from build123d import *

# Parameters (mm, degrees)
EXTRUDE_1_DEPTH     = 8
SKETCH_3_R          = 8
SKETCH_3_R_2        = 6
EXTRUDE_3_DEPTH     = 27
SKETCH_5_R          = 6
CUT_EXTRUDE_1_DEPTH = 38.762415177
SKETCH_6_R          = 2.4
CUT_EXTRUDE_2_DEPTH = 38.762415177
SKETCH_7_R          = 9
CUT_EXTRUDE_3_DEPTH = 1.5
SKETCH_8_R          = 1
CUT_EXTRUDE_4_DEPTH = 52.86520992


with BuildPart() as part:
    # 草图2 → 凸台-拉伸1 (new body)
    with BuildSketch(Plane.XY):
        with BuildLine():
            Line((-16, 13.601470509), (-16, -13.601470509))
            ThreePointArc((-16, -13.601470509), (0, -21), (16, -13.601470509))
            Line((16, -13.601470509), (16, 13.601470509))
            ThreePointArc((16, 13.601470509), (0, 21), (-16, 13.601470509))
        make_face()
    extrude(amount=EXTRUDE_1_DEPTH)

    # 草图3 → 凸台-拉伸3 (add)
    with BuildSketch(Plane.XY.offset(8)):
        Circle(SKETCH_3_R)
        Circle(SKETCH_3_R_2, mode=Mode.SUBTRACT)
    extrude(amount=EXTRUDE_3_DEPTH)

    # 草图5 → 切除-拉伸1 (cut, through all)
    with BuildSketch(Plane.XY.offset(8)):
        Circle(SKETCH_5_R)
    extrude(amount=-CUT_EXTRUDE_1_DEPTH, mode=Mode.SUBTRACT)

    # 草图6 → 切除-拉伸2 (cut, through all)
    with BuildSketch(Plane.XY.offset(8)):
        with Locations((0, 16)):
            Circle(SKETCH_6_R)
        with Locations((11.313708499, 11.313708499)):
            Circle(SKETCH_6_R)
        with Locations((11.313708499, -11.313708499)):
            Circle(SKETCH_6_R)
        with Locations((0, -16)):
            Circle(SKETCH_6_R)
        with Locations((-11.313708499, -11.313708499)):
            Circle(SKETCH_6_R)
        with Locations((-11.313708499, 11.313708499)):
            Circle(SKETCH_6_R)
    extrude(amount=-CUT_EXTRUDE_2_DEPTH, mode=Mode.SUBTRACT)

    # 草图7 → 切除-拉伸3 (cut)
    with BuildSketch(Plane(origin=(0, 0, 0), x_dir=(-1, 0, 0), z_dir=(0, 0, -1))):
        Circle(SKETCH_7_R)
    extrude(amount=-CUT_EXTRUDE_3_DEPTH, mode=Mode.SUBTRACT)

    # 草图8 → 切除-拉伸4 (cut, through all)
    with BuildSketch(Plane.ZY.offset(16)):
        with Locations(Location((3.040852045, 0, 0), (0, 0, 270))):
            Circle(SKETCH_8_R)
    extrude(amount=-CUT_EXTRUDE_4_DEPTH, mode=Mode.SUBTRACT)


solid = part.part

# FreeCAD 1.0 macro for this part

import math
import FreeCAD as App
import Part
import Sketcher

V = App.Vector

doc = App.newDocument("Part")
body = doc.addObject("PartDesign::Body", "Body")

sketch1 = body.newObject("Sketcher::SketchObject", "Sketch")
sketch1.AttachmentSupport = (doc.getObject("XY_Plane"), [""])
sketch1.MapMode = "FlatFace"
sketch1.addGeometry(Part.LineSegment(V(-16, 14, 0), V(-16, -14, 0)), False)
sketch1.addGeometry(Part.ArcOfCircle(Part.Circle(V(0, 0, 0), V(0, 0, 1), 21), math.radians(-140), math.radians(-40)), False)
sketch1.addGeometry(Part.LineSegment(V(16, -14, 0), V(16, 14, 0)), False)
sketch1.addGeometry(Part.ArcOfCircle(Part.Circle(V(0, 0, 0), V(0, 0, 1), 21), math.radians(40), math.radians(140)), False)
sketch1.addConstraint(Sketcher.Constraint("Coincident", 0, 2, 1, 1))
sketch1.addConstraint(Sketcher.Constraint("Coincident", 1, 2, 2, 1))
sketch1.addConstraint(Sketcher.Constraint("Coincident", 2, 2, 3, 1))
sketch1.addConstraint(Sketcher.Constraint("Coincident", 3, 2, 0, 1))
sketch1.addConstraint(Sketcher.Constraint("Vertical", 0))
sketch1.addConstraint(Sketcher.Constraint("Vertical", 2))
sketch1.addConstraint(Sketcher.Constraint("Coincident", 1, 3, -1, 1))
sketch1.addConstraint(Sketcher.Constraint("Coincident", 3, 3, -1, 1))
sketch1.addConstraint(Sketcher.Constraint("Equal", 1, 3))
sketch1.addConstraint(Sketcher.Constraint("Horizontal", 0, 2, 1, 2))
sketch1.addConstraint(Sketcher.Constraint("Radius", 1, 21.0))
sketch1.addConstraint(Sketcher.Constraint("DistanceX", 0, 2, -1, 1, 16.0))
pad1 = body.newObject("PartDesign::Pad", "Pad")
pad1.Profile = sketch1
pad1.Length = 8

sketch2 = body.newObject("Sketcher::SketchObject", "Sketch001")
sketch2.AttachmentSupport = (doc.getObject("XY_Plane"), [""])
sketch2.MapMode = "FlatFace"
sketch2.AttachmentOffset = App.Placement(V(0, 0, 8), App.Rotation())
sketch2.addGeometry(Part.Circle(V(0, 0, 0), V(0, 0, 1), 8), False)
sketch2.addGeometry(Part.Circle(V(0, 0, 0), V(0, 0, 1), 6), False)
sketch2.addConstraint(Sketcher.Constraint("Coincident", 0, 3, -1, 1))
sketch2.addConstraint(Sketcher.Constraint("Coincident", 1, 3, -1, 1))
sketch2.addConstraint(Sketcher.Constraint("Diameter", 0, 16.0))
sketch2.addConstraint(Sketcher.Constraint("Diameter", 1, 12.0))
pad2 = body.newObject("PartDesign::Pad", "Pad001")
pad2.Profile = sketch2
pad2.Length = 27

sketch3 = body.newObject("Sketcher::SketchObject", "Sketch002")
sketch3.AttachmentSupport = (doc.getObject("XY_Plane"), [""])
sketch3.MapMode = "FlatFace"
sketch3.AttachmentOffset = App.Placement(V(0, 0, 8), App.Rotation())
sketch3.addGeometry(Part.Circle(V(0, 0, 0), V(0, 0, 1), 6), False)
sketch3.addConstraint(Sketcher.Constraint("Coincident", 0, 3, -1, 1))
sketch3.addConstraint(Sketcher.Constraint("Diameter", 0, 12.0))
pocket1 = body.newObject("PartDesign::Pocket", "Pocket")
pocket1.Profile = sketch3
pocket1.Type = "ThroughAll"

sketch4 = body.newObject("Sketcher::SketchObject", "Sketch003")
sketch4.AttachmentSupport = (doc.getObject("XY_Plane"), [""])
sketch4.MapMode = "FlatFace"
sketch4.AttachmentOffset = App.Placement(V(0, 0, 8), App.Rotation())
sketch4.addGeometry(Part.Circle(V(0, 16, 0), V(0, 0, 1), 2.4), False)
sketch4.addGeometry(Part.Circle(V(11.3, 11.3, 0), V(0, 0, 1), 2.4), False)
sketch4.addGeometry(Part.Circle(V(11.3, -11.3, 0), V(0, 0, 1), 2.4), False)
sketch4.addGeometry(Part.Circle(V(0, -16, 0), V(0, 0, 1), 2.4), False)
sketch4.addGeometry(Part.Circle(V(-11.3, -11.3, 0), V(0, 0, 1), 2.4), False)
sketch4.addGeometry(Part.Circle(V(-11.3, 11.3, 0), V(0, 0, 1), 2.4), False)
sketch4.addConstraint(Sketcher.Constraint("Equal", 0, 1))
sketch4.addConstraint(Sketcher.Constraint("Equal", 1, 2))
sketch4.addConstraint(Sketcher.Constraint("Equal", 2, 3))
sketch4.addConstraint(Sketcher.Constraint("Equal", 3, 4))
sketch4.addConstraint(Sketcher.Constraint("Equal", 4, 5))
sketch4.addConstraint(Sketcher.Constraint("Symmetric", 0, 3, 3, 3, -1, 1))
sketch4.addConstraint(Sketcher.Constraint("Symmetric", 1, 3, 4, 3, -1, 1))
sketch4.addConstraint(Sketcher.Constraint("Symmetric", 2, 3, 5, 3, -1, 1))
sketch4.addConstraint(Sketcher.Constraint("Symmetric", 2, 3, 4, 3, -2))
sketch4.addConstraint(Sketcher.Constraint("PointOnObject", 0, 3, -2))
sketch4.addConstraint(Sketcher.Constraint("Diameter", 0, 4.8))
sketch4.addConstraint(Sketcher.Constraint("DistanceY", -1, 1, 0, 3, 16.0))
sketch4.addConstraint(Sketcher.Constraint("DistanceX", -1, 1, 1, 3, 11.313708))
sketch4.addConstraint(Sketcher.Constraint("DistanceY", -1, 1, 1, 3, 11.313708))
pocket2 = body.newObject("PartDesign::Pocket", "Pocket001")
pocket2.Profile = sketch4
pocket2.Type = "ThroughAll"

sketch5 = body.newObject("Sketcher::SketchObject", "Sketch004")
sketch5.AttachmentSupport = (doc.getObject("XY_Plane"), [""])
sketch5.MapMode = "FlatFace"
sketch5.addGeometry(Part.Circle(V(0, 0, 0), V(0, 0, 1), 9), False)
sketch5.addConstraint(Sketcher.Constraint("Coincident", 0, 3, -1, 1))
sketch5.addConstraint(Sketcher.Constraint("Diameter", 0, 18.0))
pocket3 = body.newObject("PartDesign::Pocket", "Pocket002")
pocket3.Profile = sketch5
pocket3.Length = 1.5
pocket3.Reversed = True

sketch6 = body.newObject("Sketcher::SketchObject", "Sketch005")
sketch6.AttachmentSupport = (doc.getObject("YZ_Plane"), [""])
sketch6.MapMode = "FlatFace"
sketch6.AttachmentOffset = App.Placement(V(0, 0, -16), App.Rotation())
sketch6.addGeometry(Part.Circle(V(0, 3, 0), V(0, 0, 1), 1), False)
sketch6.addConstraint(Sketcher.Constraint("PointOnObject", 0, 3, -2))
sketch6.addConstraint(Sketcher.Constraint("Diameter", 0, 2.0))
sketch6.addConstraint(Sketcher.Constraint("DistanceY", -1, 1, 0, 3, 3.040852))
pocket4 = body.newObject("PartDesign::Pocket", "Pocket003")
pocket4.Profile = sketch6
pocket4.Type = "ThroughAll"
pocket4.Reversed = True

doc.recompute()
